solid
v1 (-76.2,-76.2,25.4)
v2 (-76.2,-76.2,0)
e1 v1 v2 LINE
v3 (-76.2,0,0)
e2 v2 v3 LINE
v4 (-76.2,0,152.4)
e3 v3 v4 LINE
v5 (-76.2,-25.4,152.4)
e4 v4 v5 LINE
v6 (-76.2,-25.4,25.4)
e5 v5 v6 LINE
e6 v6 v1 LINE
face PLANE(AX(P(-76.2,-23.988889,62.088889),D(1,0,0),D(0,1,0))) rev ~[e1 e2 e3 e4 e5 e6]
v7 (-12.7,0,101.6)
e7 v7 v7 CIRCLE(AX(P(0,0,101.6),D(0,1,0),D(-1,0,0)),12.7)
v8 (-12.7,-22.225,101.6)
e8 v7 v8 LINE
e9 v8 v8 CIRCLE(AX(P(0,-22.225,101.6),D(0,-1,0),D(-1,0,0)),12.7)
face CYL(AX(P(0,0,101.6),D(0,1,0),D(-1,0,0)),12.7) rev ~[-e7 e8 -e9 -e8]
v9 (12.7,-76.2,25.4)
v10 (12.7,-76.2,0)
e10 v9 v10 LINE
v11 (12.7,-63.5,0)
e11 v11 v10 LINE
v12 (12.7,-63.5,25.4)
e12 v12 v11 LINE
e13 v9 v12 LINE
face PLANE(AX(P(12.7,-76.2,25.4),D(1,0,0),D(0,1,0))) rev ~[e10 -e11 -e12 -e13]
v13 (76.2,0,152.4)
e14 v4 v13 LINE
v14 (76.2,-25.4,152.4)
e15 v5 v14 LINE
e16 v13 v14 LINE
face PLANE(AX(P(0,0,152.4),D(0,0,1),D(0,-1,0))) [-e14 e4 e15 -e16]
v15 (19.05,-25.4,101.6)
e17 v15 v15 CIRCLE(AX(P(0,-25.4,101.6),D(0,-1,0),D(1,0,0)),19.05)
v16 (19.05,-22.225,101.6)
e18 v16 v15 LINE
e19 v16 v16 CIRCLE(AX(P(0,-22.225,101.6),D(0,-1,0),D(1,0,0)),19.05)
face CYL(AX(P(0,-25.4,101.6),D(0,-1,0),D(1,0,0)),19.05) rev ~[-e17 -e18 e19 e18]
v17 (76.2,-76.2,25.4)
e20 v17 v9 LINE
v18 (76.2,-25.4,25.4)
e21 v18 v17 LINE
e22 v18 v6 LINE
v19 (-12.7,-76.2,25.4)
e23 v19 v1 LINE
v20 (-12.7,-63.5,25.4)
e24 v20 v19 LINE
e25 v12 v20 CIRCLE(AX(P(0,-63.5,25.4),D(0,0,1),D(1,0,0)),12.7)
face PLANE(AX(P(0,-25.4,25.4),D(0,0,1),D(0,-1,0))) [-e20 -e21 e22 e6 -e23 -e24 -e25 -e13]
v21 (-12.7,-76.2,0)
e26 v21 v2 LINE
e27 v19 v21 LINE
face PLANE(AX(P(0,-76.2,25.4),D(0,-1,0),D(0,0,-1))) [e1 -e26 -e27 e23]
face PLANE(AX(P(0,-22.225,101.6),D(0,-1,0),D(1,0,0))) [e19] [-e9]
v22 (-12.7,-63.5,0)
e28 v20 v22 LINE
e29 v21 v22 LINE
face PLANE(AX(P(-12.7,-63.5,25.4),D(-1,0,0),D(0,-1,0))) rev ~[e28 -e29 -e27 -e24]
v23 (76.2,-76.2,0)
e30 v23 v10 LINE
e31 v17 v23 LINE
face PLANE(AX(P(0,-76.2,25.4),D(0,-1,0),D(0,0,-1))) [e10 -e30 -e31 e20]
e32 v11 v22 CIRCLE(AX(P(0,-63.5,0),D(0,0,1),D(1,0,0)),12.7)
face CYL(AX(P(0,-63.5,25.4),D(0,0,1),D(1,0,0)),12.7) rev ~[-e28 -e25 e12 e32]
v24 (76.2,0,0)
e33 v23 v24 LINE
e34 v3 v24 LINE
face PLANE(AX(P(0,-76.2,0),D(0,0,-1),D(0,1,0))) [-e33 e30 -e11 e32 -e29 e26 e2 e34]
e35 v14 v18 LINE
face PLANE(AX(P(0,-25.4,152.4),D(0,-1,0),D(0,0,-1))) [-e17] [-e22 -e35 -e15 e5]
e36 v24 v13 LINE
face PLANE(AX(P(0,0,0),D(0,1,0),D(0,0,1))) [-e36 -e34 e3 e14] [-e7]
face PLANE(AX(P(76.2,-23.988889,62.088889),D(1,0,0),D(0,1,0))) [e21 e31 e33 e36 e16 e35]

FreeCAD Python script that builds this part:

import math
import FreeCAD as App
import Part
import Sketcher
Q = App.Units.Quantity


def add_polygon(sketch, points):
    """Adds a closed chain of lines whose ends are joined by coincident constraints."""
    first, n = sketch.GeometryCount, len(points)
    for a, b in zip(points, points[1:] + points[:1]):
        sketch.addGeometry(Part.LineSegment(App.Vector(*a, 0), App.Vector(*b, 0)), False)
    for i in range(n):
        sketch.addConstraint(Sketcher.Constraint("Coincident", first + i, 2, first + (i + 1) % n, 1))

doc = App.newDocument("Part")
body = doc.addObject("PartDesign::Body", "Body")

# Sketch on YZ plane
sketch1 = doc.addObject("Sketcher::SketchObject", "Sketch")
body.addObject(sketch1)
sketch1.AttachmentSupport = (doc.YZ_Plane, [""])
sketch1.MapMode = "FlatFace"
add_polygon(sketch1, [(-76, 0), (0, 0), (0, 152), (-25, 152), (-25, 25), (-76, 25)])  # lines 0-5
sketch1.addConstraint([
    Sketcher.Constraint("Horizontal", 0),
    Sketcher.Constraint("Vertical", 1),
    Sketcher.Constraint("Horizontal", 2),
    Sketcher.Constraint("Vertical", 3),
    Sketcher.Constraint("Horizontal", 4),
    Sketcher.Constraint("Vertical", 5),
    Sketcher.Constraint("Coincident", 0, 2, -1, 1),
    Sketcher.Constraint("Equal", 2, 5),
    Sketcher.Constraint("DistanceX", 0, 1, 0, 2, Q("3 in")),
    Sketcher.Constraint("DistanceX", 2, 2, 2, 1, Q("1 in")),
    Sketcher.Constraint("DistanceY", 1, 1, 1, 2, Q("6 in")),
])
pad1 = doc.addObject("PartDesign::Pad", "Pad")
body.addObject(pad1)
pad1.Profile = sketch1
pad1.Length = Q("6 in")
pad1.Midplane = True

# Sketch on XZ plane
sketch2 = doc.addObject("Sketcher::SketchObject", "Sketch001")
body.addObject(sketch2)
sketch2.AttachmentSupport = (doc.XZ_Plane, [""])
sketch2.MapMode = "FlatFace"
sketch2.addGeometry(Part.Circle(App.Vector(0, 102, 0), App.Vector(0, 0, 1), 13), False)
sketch2.addConstraint([
    Sketcher.Constraint("PointOnObject", 0, 3, -2),
    Sketcher.Constraint("Diameter", 0, Q("1 in")),
    Sketcher.Constraint("DistanceY", -1, 1, 0, 3, Q("4 in")),
])
pocket1 = doc.addObject("PartDesign::Pocket", "Pocket")
body.addObject(pocket1)
pocket1.Profile = sketch2
pocket1.Type = "ThroughAll"
pocket1.Reversed = True

# Sketch on XY plane
sketch3 = doc.addObject("Sketcher::SketchObject", "Sketch002")
body.addObject(sketch3)
sketch3.AttachmentSupport = (doc.XY_Plane, [""])
sketch3.MapMode = "FlatFace"
sketch3.AttachmentOffset = App.Placement(App.Vector(0, 0, 1 * 25.4), App.Rotation())
sketch3.addGeometry([
    Part.LineSegment(App.Vector(-13, -64, 0), App.Vector(-13, -76, 0)),
    Part.LineSegment(App.Vector(-13, -76, 0), App.Vector(13, -76, 0)),
    Part.LineSegment(App.Vector(13, -76, 0), App.Vector(13, -64, 0)),
    Part.ArcOfCircle(Part.Circle(App.Vector(0, -64, 0), App.Vector(0, 0, 1), 13), math.radians(0), math.radians(180)),
], False)
sketch3.addConstraint([
    Sketcher.Constraint("Coincident", 0, 2, 1, 1),
    Sketcher.Constraint("Coincident", 1, 2, 2, 1),
    Sketcher.Constraint("Tangent", 2, 2, 3, 1),
    Sketcher.Constraint("Tangent", 3, 2, 0, 1),
    Sketcher.Constraint("Vertical", 0),
    Sketcher.Constraint("Horizontal", 1),
    Sketcher.Constraint("Vertical", 2),
    Sketcher.Constraint("PointOnObject", 3, 3, -2),
    Sketcher.Constraint("Radius", 3, Q("0.5 in")),
    Sketcher.Constraint("DistanceY", 0, 2, 0, 1, Q("0.5 in")),
    Sketcher.Constraint("DistanceY", 0, 2, -1, 1, Q("3 in")),
])
pocket2 = doc.addObject("PartDesign::Pocket", "Pocket001")
body.addObject(pocket2)
pocket2.Profile = sketch3
pocket2.Type = "ThroughAll"

# Sketch on XZ plane
sketch4 = doc.addObject("Sketcher::SketchObject", "Sketch003")
body.addObject(sketch4)
sketch4.AttachmentSupport = (doc.XZ_Plane, [""])
sketch4.MapMode = "FlatFace"
sketch4.AttachmentOffset = App.Placement(App.Vector(0, 0, 1 * 25.4), App.Rotation())
sketch4.addGeometry([
    Part.Circle(App.Vector(0, 102, 0), App.Vector(0, 0, 1), 19),
    Part.Circle(App.Vector(0, 102, 0), App.Vector(0, 0, 1), 13),
], False)
sketch4.addConstraint([
    Sketcher.Constraint("Coincident", 1, 3, 0, 3),
    Sketcher.Constraint("PointOnObject", 0, 3, -2),
    Sketcher.Constraint("Diameter", 1, Q("1 in")),
    Sketcher.Constraint("Diameter", 0, Q("1.5 in")),
    Sketcher.Constraint("DistanceY", -1, 1, 0, 3, Q("4 in")),
])
pocket3 = doc.addObject("PartDesign::Pocket", "Pocket002")
body.addObject(pocket3)
pocket3.Profile = sketch4
pocket3.Length = Q("0.25 in")
pocket3.Midplane = True

doc.recompute()
